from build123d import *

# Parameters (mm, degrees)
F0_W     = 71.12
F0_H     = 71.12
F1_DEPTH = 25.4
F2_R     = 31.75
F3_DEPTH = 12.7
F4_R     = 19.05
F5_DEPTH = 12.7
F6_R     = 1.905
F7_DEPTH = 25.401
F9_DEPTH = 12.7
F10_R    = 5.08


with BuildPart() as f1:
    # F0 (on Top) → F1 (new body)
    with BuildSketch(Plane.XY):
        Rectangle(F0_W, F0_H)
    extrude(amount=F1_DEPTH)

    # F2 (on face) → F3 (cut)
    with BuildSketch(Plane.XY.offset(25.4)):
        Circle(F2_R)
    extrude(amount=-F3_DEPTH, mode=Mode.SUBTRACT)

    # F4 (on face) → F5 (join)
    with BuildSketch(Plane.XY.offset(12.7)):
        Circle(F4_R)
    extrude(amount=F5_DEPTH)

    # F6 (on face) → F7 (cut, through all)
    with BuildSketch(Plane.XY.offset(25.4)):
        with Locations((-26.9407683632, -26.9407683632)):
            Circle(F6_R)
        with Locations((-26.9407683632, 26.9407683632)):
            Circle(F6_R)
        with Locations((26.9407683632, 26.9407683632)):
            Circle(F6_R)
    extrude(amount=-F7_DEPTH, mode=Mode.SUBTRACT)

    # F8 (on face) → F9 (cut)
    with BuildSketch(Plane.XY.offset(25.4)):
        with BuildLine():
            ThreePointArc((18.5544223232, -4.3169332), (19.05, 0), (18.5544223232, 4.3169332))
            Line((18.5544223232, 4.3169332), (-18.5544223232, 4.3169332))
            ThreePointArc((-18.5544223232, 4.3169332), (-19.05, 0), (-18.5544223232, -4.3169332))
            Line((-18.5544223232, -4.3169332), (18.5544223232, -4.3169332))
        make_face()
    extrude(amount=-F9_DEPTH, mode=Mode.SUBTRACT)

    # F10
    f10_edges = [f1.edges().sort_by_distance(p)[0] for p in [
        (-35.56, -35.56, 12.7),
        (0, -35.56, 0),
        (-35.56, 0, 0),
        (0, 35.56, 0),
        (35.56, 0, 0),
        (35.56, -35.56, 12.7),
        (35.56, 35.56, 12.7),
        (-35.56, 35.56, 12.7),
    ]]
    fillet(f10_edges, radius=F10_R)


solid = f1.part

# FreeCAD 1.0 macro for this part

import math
import FreeCAD as App
import Part
import Sketcher

V = App.Vector
Q = App.Units.Quantity


def edges_at(feature, points):
    """Names of the edges that pass closest to the given points."""
    edges = feature.Shape.Edges
    near = lambda p: min(range(len(edges)), key=lambda i: edges[i].distToShape(Part.Vertex(*p))[0])
    return sorted({f"Edge{near(p) + 1}" for p in points})

doc = App.newDocument("Part")
body = doc.addObject("PartDesign::Body", "Body")

sketch1 = doc.addObject("Sketcher::SketchObject", "Sketch")
body.addObject(sketch1)
sketch1.AttachmentSupport = (doc.XY_Plane, [""])
sketch1.MapMode = "FlatFace"
sketch1.addGeometry([
    Part.LineSegment(V(-36, 36, 0), V(-36, -36, 0)),
    Part.LineSegment(V(-36, -36, 0), V(36, -36, 0)),
    Part.LineSegment(V(36, -36, 0), V(36, 36, 0)),
    Part.LineSegment(V(36, 36, 0), V(-36, 36, 0)),
], False)
sketch1.addConstraint([
    Sketcher.Constraint("Coincident", 0, 2, 1, 1),
    Sketcher.Constraint("Coincident", 1, 2, 2, 1),
    Sketcher.Constraint("Coincident", 2, 2, 3, 1),
    Sketcher.Constraint("Coincident", 3, 2, 0, 1),
    Sketcher.Constraint("Vertical", 0),
    Sketcher.Constraint("Horizontal", 1),
    Sketcher.Constraint("Vertical", 2),
    Sketcher.Constraint("Horizontal", 3),
    Sketcher.Constraint("Symmetric", 0, 2, 2, 2, -1, 1),
    Sketcher.Constraint("Equal", 3, 0),
    Sketcher.Constraint("DistanceX", 1, 1, 1, 2, Q("2.8 in")),
])
pad1 = doc.addObject("PartDesign::Pad", "Pad")
body.addObject(pad1)
pad1.Profile = sketch1
pad1.Length = Q("1 in")

sketch2 = doc.addObject("Sketcher::SketchObject", "Sketch001")
body.addObject(sketch2)
sketch2.AttachmentSupport = (doc.XY_Plane, [""])
sketch2.MapMode = "FlatFace"
sketch2.AttachmentOffset = App.Placement(V(0, 0, 1 * 25.4), App.Rotation())
sketch2.addGeometry(Part.Circle(V(0, 0, 0), V(0, 0, 1), 32), False)
sketch2.addConstraint([
    Sketcher.Constraint("Coincident", 0, 3, -1, 1),
    Sketcher.Constraint("Diameter", 0, Q("2.5 in")),
])
pocket1 = doc.addObject("PartDesign::Pocket", "Pocket")
body.addObject(pocket1)
pocket1.Profile = sketch2
pocket1.Length = Q("0.5 in")

sketch3 = doc.addObject("Sketcher::SketchObject", "Sketch002")
body.addObject(sketch3)
sketch3.AttachmentSupport = (doc.XY_Plane, [""])
sketch3.MapMode = "FlatFace"
sketch3.AttachmentOffset = App.Placement(V(0, 0, 0.5 * 25.4), App.Rotation())
sketch3.addGeometry(Part.Circle(V(0, 0, 0), V(0, 0, 1), 19), False)
sketch3.addConstraint([
    Sketcher.Constraint("Coincident", 0, 3, -1, 1),
    Sketcher.Constraint("Diameter", 0, Q("1.5 in")),
])
pad2 = doc.addObject("PartDesign::Pad", "Pad001")
body.addObject(pad2)
pad2.Profile = sketch3
pad2.Length = Q("0.5 in")

sketch4 = doc.addObject("Sketcher::SketchObject", "Sketch003")
body.addObject(sketch4)
sketch4.AttachmentSupport = (doc.XY_Plane, [""])
sketch4.MapMode = "FlatFace"
sketch4.AttachmentOffset = App.Placement(V(0, 0, 1 * 25.4), App.Rotation())
sketch4.addGeometry([
    Part.Circle(V(-26.9, -26.9, 0), V(0, 0, 1), 1.9),
    Part.Circle(V(-26.9, 26.9, 0), V(0, 0, 1), 1.9),
    Part.Circle(V(26.9, 26.9, 0), V(0, 0, 1), 1.9),
], False)
sketch4.addConstraint([
    Sketcher.Constraint("Equal", 0, 1),
    Sketcher.Constraint("Equal", 1, 2),
    Sketcher.Constraint("Symmetric", 0, 3, 2, 3, -1, 1),
    Sketcher.Constraint("Symmetric", 1, 3, 2, 3, -2),
    Sketcher.Constraint("Diameter", 0, Q("0.15 in")),
    Sketcher.Constraint("DistanceX", 0, 3, -1, 1, 26.940768),
    Sketcher.Constraint("DistanceY", 0, 3, -1, 1, 26.940768),
])
pocket2 = doc.addObject("PartDesign::Pocket", "Pocket001")
body.addObject(pocket2)
pocket2.Profile = sketch4
pocket2.Type = "ThroughAll"

sketch5 = doc.addObject("Sketcher::SketchObject", "Sketch004")
body.addObject(sketch5)
sketch5.AttachmentSupport = (doc.XY_Plane, [""])
sketch5.MapMode = "FlatFace"
sketch5.AttachmentOffset = App.Placement(V(0, 0, 1 * 25.4), App.Rotation())
sketch5.addGeometry([
    Part.ArcOfCircle(Part.Circle(V(0, 0, 0), V(0, 0, 1), 19), math.radians(-13), math.radians(13)),
    Part.LineSegment(V(19, 4, 0), V(-19, 4, 0)),
    Part.ArcOfCircle(Part.Circle(V(0, 0, 0), V(0, 0, 1), 19), math.radians(167), math.radians(193)),
    Part.LineSegment(V(-19, -4, 0), V(19, -4, 0)),
], False)
sketch5.addConstraint([
    Sketcher.Constraint("Coincident", 0, 2, 1, 1),
    Sketcher.Constraint("Coincident", 1, 2, 2, 1),
    Sketcher.Constraint("Coincident", 2, 2, 3, 1),
    Sketcher.Constraint("Coincident", 3, 2, 0, 1),
    Sketcher.Constraint("Horizontal", 1),
    Sketcher.Constraint("Horizontal", 3),
    Sketcher.Constraint("Coincident", 0, 3, -1, 1),
    Sketcher.Constraint("Coincident", 2, 3, -1, 1),
    Sketcher.Constraint("Equal", 0, 2),
    Sketcher.Constraint("Vertical", 1, 2, 2, 2),
    Sketcher.Constraint("Radius", 0, Q("0.75 in")),
    Sketcher.Constraint("DistanceX", 1, 2, 1, 1, 37.108845),
])
pocket3 = doc.addObject("PartDesign::Pocket", "Pocket002")
body.addObject(pocket3)
pocket3.Profile = sketch5
pocket3.Length = Q("0.5 in")
doc.recompute()

fillet = doc.addObject("PartDesign::Fillet", "Fillet")
body.addObject(fillet)
fillet.Base = (pocket3, edges_at(pocket3, [
    (-35.56, -35.56, 12.7),
    (0, -35.56, 0),
    (-35.56, 0, 0),
    (0, 35.56, 0),
    (35.56, 0, 0),
    (35.56, -35.56, 12.7),
    (35.56, 35.56, 12.7),
    (-35.56, 35.56, 12.7),
]))
fillet.Radius = Q("0.2 in")

doc.recompute()
